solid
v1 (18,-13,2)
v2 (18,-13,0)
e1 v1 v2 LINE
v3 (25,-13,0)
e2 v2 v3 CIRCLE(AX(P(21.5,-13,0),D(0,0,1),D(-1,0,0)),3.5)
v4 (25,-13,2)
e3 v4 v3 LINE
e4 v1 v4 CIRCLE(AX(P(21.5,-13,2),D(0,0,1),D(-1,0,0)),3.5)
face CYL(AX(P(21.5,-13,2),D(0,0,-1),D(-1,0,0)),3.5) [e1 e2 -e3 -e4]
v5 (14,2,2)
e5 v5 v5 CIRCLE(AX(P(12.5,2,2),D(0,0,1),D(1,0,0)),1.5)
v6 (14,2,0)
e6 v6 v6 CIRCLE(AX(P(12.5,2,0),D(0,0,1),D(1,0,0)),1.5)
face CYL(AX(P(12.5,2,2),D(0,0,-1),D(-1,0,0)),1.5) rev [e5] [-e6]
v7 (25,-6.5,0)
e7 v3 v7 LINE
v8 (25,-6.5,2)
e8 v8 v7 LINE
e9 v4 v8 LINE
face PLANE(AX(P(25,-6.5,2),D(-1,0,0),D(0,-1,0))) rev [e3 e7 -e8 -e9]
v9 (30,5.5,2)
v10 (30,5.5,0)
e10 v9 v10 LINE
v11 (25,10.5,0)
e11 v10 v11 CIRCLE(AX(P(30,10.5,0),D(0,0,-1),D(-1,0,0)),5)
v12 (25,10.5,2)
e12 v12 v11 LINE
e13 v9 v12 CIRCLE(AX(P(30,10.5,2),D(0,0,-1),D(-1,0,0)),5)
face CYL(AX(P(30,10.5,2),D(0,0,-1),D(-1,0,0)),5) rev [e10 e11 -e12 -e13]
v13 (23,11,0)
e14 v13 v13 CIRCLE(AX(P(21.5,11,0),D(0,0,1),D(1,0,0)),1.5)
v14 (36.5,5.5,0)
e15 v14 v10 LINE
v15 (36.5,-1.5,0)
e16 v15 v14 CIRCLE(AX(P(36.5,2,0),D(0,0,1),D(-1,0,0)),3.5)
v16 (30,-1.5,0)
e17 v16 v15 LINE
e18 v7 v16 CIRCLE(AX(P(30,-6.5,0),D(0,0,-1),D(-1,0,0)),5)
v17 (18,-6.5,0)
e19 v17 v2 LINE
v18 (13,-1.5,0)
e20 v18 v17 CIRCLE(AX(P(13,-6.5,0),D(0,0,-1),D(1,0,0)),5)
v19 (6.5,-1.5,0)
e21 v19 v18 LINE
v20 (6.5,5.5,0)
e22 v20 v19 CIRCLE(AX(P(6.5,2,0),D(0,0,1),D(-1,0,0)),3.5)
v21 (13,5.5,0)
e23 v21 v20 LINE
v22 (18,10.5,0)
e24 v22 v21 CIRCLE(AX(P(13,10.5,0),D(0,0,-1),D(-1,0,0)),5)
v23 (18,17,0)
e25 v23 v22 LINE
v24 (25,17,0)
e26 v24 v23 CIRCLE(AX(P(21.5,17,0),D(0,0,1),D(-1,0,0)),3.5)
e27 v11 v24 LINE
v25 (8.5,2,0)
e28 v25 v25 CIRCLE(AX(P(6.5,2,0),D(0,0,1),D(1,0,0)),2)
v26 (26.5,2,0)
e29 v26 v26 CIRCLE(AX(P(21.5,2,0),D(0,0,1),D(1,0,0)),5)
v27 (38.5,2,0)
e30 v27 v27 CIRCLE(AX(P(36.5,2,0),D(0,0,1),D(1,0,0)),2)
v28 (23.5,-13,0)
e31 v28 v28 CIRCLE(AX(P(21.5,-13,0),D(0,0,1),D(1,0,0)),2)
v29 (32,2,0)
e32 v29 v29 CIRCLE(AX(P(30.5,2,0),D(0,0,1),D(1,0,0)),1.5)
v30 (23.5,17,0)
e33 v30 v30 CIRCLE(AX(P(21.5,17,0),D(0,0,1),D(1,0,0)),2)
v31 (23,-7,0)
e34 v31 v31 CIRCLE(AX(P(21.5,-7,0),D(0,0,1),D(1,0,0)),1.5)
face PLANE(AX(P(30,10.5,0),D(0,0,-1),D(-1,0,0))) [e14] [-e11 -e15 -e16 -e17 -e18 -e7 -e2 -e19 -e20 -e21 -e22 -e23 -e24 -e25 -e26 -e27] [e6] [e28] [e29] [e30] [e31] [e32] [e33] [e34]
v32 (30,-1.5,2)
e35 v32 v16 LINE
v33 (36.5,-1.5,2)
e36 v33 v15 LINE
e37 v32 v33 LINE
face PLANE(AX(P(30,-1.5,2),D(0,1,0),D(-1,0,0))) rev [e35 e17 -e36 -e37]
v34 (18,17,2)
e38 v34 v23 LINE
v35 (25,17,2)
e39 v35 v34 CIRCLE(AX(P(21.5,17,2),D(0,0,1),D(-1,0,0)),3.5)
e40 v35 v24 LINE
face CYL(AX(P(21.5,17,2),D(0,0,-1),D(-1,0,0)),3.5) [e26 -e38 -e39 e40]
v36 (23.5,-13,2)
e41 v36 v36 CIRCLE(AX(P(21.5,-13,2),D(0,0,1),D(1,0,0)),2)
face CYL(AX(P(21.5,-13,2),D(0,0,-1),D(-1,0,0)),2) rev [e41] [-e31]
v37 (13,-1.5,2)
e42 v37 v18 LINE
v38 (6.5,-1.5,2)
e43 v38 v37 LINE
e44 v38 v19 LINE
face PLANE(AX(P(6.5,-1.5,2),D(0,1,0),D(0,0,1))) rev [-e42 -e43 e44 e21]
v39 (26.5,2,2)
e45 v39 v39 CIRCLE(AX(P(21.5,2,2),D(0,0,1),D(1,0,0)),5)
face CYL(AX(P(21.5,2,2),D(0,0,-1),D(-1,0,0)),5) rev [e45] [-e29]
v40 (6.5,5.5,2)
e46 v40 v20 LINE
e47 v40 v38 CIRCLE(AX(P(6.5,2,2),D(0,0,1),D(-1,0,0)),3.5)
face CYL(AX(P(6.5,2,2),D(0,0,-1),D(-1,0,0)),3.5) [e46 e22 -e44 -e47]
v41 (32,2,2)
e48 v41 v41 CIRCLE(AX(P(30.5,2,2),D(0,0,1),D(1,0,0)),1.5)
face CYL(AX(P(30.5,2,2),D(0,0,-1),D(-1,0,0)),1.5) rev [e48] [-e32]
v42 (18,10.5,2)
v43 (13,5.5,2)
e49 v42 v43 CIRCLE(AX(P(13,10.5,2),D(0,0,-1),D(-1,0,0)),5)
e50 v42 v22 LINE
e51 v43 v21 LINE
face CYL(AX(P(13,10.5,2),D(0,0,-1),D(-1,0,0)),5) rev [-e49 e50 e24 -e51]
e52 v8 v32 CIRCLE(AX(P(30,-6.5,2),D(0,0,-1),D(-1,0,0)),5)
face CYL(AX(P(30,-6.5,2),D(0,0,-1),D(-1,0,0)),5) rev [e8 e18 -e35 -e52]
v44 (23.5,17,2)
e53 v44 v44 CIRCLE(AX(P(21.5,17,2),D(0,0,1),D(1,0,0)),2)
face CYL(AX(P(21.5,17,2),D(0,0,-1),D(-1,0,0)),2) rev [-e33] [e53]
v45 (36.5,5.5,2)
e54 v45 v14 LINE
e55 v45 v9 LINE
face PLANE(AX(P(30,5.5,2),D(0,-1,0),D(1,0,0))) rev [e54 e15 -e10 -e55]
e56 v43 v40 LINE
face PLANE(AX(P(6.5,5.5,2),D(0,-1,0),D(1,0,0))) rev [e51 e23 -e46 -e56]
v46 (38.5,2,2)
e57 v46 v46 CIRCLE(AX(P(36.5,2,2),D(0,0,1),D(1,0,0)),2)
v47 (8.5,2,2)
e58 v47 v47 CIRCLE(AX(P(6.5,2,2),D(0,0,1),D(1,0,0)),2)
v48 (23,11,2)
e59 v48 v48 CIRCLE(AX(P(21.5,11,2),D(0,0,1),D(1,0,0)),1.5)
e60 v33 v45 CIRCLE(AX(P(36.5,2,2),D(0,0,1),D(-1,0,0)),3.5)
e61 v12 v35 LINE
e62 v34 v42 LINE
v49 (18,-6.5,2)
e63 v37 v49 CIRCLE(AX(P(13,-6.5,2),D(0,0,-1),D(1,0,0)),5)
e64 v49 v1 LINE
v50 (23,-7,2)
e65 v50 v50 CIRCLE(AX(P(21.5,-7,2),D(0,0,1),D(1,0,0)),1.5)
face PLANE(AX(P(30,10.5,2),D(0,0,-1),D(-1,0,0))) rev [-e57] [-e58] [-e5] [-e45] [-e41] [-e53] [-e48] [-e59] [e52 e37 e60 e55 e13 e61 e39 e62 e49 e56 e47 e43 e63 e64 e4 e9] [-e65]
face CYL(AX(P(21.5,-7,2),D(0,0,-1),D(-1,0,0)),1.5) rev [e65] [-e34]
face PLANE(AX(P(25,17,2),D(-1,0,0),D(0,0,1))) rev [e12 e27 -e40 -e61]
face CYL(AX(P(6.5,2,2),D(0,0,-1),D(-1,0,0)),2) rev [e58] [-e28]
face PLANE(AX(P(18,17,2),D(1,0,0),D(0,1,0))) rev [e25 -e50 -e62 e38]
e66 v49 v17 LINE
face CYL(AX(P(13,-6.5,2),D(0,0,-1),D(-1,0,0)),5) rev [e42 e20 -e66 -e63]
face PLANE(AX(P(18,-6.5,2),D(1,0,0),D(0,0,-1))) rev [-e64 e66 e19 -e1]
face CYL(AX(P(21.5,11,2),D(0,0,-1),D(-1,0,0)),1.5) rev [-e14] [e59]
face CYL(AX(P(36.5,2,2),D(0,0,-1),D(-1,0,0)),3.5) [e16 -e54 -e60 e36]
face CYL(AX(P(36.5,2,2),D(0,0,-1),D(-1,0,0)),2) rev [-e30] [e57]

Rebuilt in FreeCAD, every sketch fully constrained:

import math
import FreeCAD as App
import Part
import Sketcher
from FreeCAD import Vector

doc = App.newDocument("Part")
body = doc.addObject("PartDesign::Body", "Body")

# Sketch on XY plane
sketch1 = body.newObject("Sketcher::SketchObject", "Sketch")
sketch1.AttachmentSupport = (doc.getObject("XY_Plane"), [""])
sketch1.MapMode = "FlatFace"
sketch1.addGeometry([
    Part.LineSegment(Vector(18, -6.5, 0), Vector(18, -13, 0)),  # 0
    Part.ArcOfCircle(Part.Circle(Vector(21.5, -13, 0), Vector(0, 0, 1), 3.5), math.radians(180), math.radians(360)),  # 1
    Part.LineSegment(Vector(25, -13, 0), Vector(25, -6.5, 0)),  # 2
    Part.ArcOfCircle(Part.Circle(Vector(30, -6.5, 0), Vector(0, 0, 1), 5), math.radians(90), math.radians(180)),  # 3
    Part.LineSegment(Vector(30, -1.5, 0), Vector(36.5, -1.5, 0)),  # 4
    Part.ArcOfCircle(Part.Circle(Vector(36.5, 2, 0), Vector(0, 0, 1), 3.5), math.radians(-90), math.radians(90)),  # 5
    Part.LineSegment(Vector(36.5, 5.5, 0), Vector(30, 5.5, 0)),  # 6
    Part.ArcOfCircle(Part.Circle(Vector(30, 10.5, 0), Vector(0, 0, 1), 5), math.radians(180), math.radians(270)),  # 7
    Part.LineSegment(Vector(25, 10.5, 0), Vector(25, 17, 0)),  # 8
    Part.ArcOfCircle(Part.Circle(Vector(21.5, 17, 0), Vector(0, 0, 1), 3.5), math.radians(0), math.radians(180)),  # 9
    Part.LineSegment(Vector(18, 17, 0), Vector(18, 10.5, 0)),  # 10
    Part.ArcOfCircle(Part.Circle(Vector(13, 10.5, 0), Vector(0, 0, 1), 5), math.radians(-90), math.radians(0)),  # 11
    Part.LineSegment(Vector(13, 5.5, 0), Vector(6.5, 5.5, 0)),  # 12
    Part.ArcOfCircle(Part.Circle(Vector(6.5, 2, 0), Vector(0, 0, 1), 3.5), math.radians(90), math.radians(270)),  # 13
    Part.LineSegment(Vector(6.5, -1.5, 0), Vector(13, -1.5, 0)),  # 14
    Part.ArcOfCircle(Part.Circle(Vector(13, -6.5, 0), Vector(0, 0, 1), 5), math.radians(0), math.radians(90)),  # 15
    Part.Circle(Vector(21.5, -13, 0), Vector(0, 0, 1), 2),  # 16
    Part.Circle(Vector(21.5, -7, 0), Vector(0, 0, 1), 1.5),  # 17
    Part.Circle(Vector(6.5, 2, 0), Vector(0, 0, 1), 2),  # 18
    Part.Circle(Vector(12.5, 2, 0), Vector(0, 0, 1), 1.5),  # 19
    Part.Circle(Vector(21.5, 2, 0), Vector(0, 0, 1), 5),  # 20
    Part.Circle(Vector(30.5, 2, 0), Vector(0, 0, 1), 1.5),  # 21
    Part.Circle(Vector(36.5, 2, 0), Vector(0, 0, 1), 2),  # 22
    Part.Circle(Vector(21.5, 11, 0), Vector(0, 0, 1), 1.5),  # 23
    Part.Circle(Vector(21.5, 17, 0), Vector(0, 0, 1), 2),  # 24
], False)
sketch1.addConstraint([
    Sketcher.Constraint("Tangent", 0, 2, 1, 1),
    Sketcher.Constraint("Tangent", 1, 2, 2, 1),
    Sketcher.Constraint("Tangent", 2, 2, 3, 2),
    Sketcher.Constraint("Tangent", 3, 1, 4, 1),
    Sketcher.Constraint("Tangent", 4, 2, 5, 1),
    Sketcher.Constraint("Tangent", 5, 2, 6, 1),
    Sketcher.Constraint("Tangent", 6, 2, 7, 2),
    Sketcher.Constraint("Tangent", 7, 1, 8, 1),
    Sketcher.Constraint("Tangent", 8, 2, 9, 1),
    Sketcher.Constraint("Tangent", 9, 2, 10, 1),
    Sketcher.Constraint("Tangent", 10, 2, 11, 2),
    Sketcher.Constraint("Tangent", 11, 1, 12, 1),
    Sketcher.Constraint("Tangent", 12, 2, 13, 1),
    Sketcher.Constraint("Tangent", 13, 2, 14, 1),
    Sketcher.Constraint("Tangent", 14, 2, 15, 2),
    Sketcher.Constraint("Tangent", 15, 1, 0, 1),
    Sketcher.Constraint("Vertical", 0),
    Sketcher.Constraint("Vertical", 2),
    Sketcher.Constraint("Horizontal", 4),
    Sketcher.Constraint("Horizontal", 6),
    Sketcher.Constraint("Vertical", 8),
    Sketcher.Constraint("Vertical", 10),
    Sketcher.Constraint("Horizontal", 12),
    Sketcher.Constraint("Horizontal", 14),
    Sketcher.Constraint("Coincident", 16, 3, 1, 3),
    Sketcher.Constraint("Coincident", 18, 3, 13, 3),
    Sketcher.Constraint("Coincident", 22, 3, 5, 3),
    Sketcher.Constraint("Coincident", 24, 3, 9, 3),
    Sketcher.Constraint("Equal", 1, 5),
    Sketcher.Constraint("Equal", 3, 7),
    Sketcher.Constraint("Equal", 5, 9),
    Sketcher.Constraint("Equal", 7, 11),
    Sketcher.Constraint("Equal", 9, 13),
    Sketcher.Constraint("Equal", 11, 15),
    Sketcher.Constraint("Equal", 16, 18),
    Sketcher.Constraint("Equal", 17, 19),
    Sketcher.Constraint("Equal", 15, 20),
    Sketcher.Constraint("Equal", 19, 21),
    Sketcher.Constraint("Equal", 18, 22),
    Sketcher.Constraint("Equal", 21, 23),
    Sketcher.Constraint("Equal", 22, 24),
    Sketcher.Constraint("Horizontal", 7, 3, 11, 3),
    Sketcher.Constraint("Horizontal", 18, 3, 19, 3),
    Sketcher.Constraint("Horizontal", 19, 3, 20, 3),
    Sketcher.Constraint("Horizontal", 20, 3, 21, 3),
    Sketcher.Constraint("Vertical", 3, 3, 7, 3),
    Sketcher.Constraint("Vertical", 16, 3, 17, 3),
    Sketcher.Constraint("Vertical", 17, 3, 20, 3),
    Sketcher.Constraint("Vertical", 20, 3, 23, 3),
    Sketcher.Constraint("Equal", 6, 12),
    Sketcher.Constraint("Equal", 14, 0),
    Sketcher.Constraint("Equal", 2, 8),
    Sketcher.Constraint("Diameter", 16, 4.0),
    Sketcher.Constraint("Diameter", 17, 3.0),
    Sketcher.Constraint("Diameter", 20, 10.0),
    Sketcher.Constraint("Radius", 1, 3.5),
    Sketcher.Constraint("DistanceX", 4, 1, 4, 2, 6.5),
    Sketcher.Constraint("DistanceY", 1, 3, -1, 1, 13.0),
    Sketcher.Constraint("DistanceX", -1, 1, 3, 3, 30.0),
    Sketcher.Constraint("DistanceY", 17, 3, -1, 1, 7.0),
    Sketcher.Constraint("DistanceY", -1, 1, 23, 3, 11.0),
    Sketcher.Constraint("DistanceX", 13, 3, 19, 3, 6.0),
    Sketcher.Constraint("DistanceX", 21, 3, 5, 3, 6.0),
])
pad1 = body.newObject("PartDesign::Pad", "Pad")
pad1.Profile = sketch1
pad1.Length = 2

doc.recompute()
